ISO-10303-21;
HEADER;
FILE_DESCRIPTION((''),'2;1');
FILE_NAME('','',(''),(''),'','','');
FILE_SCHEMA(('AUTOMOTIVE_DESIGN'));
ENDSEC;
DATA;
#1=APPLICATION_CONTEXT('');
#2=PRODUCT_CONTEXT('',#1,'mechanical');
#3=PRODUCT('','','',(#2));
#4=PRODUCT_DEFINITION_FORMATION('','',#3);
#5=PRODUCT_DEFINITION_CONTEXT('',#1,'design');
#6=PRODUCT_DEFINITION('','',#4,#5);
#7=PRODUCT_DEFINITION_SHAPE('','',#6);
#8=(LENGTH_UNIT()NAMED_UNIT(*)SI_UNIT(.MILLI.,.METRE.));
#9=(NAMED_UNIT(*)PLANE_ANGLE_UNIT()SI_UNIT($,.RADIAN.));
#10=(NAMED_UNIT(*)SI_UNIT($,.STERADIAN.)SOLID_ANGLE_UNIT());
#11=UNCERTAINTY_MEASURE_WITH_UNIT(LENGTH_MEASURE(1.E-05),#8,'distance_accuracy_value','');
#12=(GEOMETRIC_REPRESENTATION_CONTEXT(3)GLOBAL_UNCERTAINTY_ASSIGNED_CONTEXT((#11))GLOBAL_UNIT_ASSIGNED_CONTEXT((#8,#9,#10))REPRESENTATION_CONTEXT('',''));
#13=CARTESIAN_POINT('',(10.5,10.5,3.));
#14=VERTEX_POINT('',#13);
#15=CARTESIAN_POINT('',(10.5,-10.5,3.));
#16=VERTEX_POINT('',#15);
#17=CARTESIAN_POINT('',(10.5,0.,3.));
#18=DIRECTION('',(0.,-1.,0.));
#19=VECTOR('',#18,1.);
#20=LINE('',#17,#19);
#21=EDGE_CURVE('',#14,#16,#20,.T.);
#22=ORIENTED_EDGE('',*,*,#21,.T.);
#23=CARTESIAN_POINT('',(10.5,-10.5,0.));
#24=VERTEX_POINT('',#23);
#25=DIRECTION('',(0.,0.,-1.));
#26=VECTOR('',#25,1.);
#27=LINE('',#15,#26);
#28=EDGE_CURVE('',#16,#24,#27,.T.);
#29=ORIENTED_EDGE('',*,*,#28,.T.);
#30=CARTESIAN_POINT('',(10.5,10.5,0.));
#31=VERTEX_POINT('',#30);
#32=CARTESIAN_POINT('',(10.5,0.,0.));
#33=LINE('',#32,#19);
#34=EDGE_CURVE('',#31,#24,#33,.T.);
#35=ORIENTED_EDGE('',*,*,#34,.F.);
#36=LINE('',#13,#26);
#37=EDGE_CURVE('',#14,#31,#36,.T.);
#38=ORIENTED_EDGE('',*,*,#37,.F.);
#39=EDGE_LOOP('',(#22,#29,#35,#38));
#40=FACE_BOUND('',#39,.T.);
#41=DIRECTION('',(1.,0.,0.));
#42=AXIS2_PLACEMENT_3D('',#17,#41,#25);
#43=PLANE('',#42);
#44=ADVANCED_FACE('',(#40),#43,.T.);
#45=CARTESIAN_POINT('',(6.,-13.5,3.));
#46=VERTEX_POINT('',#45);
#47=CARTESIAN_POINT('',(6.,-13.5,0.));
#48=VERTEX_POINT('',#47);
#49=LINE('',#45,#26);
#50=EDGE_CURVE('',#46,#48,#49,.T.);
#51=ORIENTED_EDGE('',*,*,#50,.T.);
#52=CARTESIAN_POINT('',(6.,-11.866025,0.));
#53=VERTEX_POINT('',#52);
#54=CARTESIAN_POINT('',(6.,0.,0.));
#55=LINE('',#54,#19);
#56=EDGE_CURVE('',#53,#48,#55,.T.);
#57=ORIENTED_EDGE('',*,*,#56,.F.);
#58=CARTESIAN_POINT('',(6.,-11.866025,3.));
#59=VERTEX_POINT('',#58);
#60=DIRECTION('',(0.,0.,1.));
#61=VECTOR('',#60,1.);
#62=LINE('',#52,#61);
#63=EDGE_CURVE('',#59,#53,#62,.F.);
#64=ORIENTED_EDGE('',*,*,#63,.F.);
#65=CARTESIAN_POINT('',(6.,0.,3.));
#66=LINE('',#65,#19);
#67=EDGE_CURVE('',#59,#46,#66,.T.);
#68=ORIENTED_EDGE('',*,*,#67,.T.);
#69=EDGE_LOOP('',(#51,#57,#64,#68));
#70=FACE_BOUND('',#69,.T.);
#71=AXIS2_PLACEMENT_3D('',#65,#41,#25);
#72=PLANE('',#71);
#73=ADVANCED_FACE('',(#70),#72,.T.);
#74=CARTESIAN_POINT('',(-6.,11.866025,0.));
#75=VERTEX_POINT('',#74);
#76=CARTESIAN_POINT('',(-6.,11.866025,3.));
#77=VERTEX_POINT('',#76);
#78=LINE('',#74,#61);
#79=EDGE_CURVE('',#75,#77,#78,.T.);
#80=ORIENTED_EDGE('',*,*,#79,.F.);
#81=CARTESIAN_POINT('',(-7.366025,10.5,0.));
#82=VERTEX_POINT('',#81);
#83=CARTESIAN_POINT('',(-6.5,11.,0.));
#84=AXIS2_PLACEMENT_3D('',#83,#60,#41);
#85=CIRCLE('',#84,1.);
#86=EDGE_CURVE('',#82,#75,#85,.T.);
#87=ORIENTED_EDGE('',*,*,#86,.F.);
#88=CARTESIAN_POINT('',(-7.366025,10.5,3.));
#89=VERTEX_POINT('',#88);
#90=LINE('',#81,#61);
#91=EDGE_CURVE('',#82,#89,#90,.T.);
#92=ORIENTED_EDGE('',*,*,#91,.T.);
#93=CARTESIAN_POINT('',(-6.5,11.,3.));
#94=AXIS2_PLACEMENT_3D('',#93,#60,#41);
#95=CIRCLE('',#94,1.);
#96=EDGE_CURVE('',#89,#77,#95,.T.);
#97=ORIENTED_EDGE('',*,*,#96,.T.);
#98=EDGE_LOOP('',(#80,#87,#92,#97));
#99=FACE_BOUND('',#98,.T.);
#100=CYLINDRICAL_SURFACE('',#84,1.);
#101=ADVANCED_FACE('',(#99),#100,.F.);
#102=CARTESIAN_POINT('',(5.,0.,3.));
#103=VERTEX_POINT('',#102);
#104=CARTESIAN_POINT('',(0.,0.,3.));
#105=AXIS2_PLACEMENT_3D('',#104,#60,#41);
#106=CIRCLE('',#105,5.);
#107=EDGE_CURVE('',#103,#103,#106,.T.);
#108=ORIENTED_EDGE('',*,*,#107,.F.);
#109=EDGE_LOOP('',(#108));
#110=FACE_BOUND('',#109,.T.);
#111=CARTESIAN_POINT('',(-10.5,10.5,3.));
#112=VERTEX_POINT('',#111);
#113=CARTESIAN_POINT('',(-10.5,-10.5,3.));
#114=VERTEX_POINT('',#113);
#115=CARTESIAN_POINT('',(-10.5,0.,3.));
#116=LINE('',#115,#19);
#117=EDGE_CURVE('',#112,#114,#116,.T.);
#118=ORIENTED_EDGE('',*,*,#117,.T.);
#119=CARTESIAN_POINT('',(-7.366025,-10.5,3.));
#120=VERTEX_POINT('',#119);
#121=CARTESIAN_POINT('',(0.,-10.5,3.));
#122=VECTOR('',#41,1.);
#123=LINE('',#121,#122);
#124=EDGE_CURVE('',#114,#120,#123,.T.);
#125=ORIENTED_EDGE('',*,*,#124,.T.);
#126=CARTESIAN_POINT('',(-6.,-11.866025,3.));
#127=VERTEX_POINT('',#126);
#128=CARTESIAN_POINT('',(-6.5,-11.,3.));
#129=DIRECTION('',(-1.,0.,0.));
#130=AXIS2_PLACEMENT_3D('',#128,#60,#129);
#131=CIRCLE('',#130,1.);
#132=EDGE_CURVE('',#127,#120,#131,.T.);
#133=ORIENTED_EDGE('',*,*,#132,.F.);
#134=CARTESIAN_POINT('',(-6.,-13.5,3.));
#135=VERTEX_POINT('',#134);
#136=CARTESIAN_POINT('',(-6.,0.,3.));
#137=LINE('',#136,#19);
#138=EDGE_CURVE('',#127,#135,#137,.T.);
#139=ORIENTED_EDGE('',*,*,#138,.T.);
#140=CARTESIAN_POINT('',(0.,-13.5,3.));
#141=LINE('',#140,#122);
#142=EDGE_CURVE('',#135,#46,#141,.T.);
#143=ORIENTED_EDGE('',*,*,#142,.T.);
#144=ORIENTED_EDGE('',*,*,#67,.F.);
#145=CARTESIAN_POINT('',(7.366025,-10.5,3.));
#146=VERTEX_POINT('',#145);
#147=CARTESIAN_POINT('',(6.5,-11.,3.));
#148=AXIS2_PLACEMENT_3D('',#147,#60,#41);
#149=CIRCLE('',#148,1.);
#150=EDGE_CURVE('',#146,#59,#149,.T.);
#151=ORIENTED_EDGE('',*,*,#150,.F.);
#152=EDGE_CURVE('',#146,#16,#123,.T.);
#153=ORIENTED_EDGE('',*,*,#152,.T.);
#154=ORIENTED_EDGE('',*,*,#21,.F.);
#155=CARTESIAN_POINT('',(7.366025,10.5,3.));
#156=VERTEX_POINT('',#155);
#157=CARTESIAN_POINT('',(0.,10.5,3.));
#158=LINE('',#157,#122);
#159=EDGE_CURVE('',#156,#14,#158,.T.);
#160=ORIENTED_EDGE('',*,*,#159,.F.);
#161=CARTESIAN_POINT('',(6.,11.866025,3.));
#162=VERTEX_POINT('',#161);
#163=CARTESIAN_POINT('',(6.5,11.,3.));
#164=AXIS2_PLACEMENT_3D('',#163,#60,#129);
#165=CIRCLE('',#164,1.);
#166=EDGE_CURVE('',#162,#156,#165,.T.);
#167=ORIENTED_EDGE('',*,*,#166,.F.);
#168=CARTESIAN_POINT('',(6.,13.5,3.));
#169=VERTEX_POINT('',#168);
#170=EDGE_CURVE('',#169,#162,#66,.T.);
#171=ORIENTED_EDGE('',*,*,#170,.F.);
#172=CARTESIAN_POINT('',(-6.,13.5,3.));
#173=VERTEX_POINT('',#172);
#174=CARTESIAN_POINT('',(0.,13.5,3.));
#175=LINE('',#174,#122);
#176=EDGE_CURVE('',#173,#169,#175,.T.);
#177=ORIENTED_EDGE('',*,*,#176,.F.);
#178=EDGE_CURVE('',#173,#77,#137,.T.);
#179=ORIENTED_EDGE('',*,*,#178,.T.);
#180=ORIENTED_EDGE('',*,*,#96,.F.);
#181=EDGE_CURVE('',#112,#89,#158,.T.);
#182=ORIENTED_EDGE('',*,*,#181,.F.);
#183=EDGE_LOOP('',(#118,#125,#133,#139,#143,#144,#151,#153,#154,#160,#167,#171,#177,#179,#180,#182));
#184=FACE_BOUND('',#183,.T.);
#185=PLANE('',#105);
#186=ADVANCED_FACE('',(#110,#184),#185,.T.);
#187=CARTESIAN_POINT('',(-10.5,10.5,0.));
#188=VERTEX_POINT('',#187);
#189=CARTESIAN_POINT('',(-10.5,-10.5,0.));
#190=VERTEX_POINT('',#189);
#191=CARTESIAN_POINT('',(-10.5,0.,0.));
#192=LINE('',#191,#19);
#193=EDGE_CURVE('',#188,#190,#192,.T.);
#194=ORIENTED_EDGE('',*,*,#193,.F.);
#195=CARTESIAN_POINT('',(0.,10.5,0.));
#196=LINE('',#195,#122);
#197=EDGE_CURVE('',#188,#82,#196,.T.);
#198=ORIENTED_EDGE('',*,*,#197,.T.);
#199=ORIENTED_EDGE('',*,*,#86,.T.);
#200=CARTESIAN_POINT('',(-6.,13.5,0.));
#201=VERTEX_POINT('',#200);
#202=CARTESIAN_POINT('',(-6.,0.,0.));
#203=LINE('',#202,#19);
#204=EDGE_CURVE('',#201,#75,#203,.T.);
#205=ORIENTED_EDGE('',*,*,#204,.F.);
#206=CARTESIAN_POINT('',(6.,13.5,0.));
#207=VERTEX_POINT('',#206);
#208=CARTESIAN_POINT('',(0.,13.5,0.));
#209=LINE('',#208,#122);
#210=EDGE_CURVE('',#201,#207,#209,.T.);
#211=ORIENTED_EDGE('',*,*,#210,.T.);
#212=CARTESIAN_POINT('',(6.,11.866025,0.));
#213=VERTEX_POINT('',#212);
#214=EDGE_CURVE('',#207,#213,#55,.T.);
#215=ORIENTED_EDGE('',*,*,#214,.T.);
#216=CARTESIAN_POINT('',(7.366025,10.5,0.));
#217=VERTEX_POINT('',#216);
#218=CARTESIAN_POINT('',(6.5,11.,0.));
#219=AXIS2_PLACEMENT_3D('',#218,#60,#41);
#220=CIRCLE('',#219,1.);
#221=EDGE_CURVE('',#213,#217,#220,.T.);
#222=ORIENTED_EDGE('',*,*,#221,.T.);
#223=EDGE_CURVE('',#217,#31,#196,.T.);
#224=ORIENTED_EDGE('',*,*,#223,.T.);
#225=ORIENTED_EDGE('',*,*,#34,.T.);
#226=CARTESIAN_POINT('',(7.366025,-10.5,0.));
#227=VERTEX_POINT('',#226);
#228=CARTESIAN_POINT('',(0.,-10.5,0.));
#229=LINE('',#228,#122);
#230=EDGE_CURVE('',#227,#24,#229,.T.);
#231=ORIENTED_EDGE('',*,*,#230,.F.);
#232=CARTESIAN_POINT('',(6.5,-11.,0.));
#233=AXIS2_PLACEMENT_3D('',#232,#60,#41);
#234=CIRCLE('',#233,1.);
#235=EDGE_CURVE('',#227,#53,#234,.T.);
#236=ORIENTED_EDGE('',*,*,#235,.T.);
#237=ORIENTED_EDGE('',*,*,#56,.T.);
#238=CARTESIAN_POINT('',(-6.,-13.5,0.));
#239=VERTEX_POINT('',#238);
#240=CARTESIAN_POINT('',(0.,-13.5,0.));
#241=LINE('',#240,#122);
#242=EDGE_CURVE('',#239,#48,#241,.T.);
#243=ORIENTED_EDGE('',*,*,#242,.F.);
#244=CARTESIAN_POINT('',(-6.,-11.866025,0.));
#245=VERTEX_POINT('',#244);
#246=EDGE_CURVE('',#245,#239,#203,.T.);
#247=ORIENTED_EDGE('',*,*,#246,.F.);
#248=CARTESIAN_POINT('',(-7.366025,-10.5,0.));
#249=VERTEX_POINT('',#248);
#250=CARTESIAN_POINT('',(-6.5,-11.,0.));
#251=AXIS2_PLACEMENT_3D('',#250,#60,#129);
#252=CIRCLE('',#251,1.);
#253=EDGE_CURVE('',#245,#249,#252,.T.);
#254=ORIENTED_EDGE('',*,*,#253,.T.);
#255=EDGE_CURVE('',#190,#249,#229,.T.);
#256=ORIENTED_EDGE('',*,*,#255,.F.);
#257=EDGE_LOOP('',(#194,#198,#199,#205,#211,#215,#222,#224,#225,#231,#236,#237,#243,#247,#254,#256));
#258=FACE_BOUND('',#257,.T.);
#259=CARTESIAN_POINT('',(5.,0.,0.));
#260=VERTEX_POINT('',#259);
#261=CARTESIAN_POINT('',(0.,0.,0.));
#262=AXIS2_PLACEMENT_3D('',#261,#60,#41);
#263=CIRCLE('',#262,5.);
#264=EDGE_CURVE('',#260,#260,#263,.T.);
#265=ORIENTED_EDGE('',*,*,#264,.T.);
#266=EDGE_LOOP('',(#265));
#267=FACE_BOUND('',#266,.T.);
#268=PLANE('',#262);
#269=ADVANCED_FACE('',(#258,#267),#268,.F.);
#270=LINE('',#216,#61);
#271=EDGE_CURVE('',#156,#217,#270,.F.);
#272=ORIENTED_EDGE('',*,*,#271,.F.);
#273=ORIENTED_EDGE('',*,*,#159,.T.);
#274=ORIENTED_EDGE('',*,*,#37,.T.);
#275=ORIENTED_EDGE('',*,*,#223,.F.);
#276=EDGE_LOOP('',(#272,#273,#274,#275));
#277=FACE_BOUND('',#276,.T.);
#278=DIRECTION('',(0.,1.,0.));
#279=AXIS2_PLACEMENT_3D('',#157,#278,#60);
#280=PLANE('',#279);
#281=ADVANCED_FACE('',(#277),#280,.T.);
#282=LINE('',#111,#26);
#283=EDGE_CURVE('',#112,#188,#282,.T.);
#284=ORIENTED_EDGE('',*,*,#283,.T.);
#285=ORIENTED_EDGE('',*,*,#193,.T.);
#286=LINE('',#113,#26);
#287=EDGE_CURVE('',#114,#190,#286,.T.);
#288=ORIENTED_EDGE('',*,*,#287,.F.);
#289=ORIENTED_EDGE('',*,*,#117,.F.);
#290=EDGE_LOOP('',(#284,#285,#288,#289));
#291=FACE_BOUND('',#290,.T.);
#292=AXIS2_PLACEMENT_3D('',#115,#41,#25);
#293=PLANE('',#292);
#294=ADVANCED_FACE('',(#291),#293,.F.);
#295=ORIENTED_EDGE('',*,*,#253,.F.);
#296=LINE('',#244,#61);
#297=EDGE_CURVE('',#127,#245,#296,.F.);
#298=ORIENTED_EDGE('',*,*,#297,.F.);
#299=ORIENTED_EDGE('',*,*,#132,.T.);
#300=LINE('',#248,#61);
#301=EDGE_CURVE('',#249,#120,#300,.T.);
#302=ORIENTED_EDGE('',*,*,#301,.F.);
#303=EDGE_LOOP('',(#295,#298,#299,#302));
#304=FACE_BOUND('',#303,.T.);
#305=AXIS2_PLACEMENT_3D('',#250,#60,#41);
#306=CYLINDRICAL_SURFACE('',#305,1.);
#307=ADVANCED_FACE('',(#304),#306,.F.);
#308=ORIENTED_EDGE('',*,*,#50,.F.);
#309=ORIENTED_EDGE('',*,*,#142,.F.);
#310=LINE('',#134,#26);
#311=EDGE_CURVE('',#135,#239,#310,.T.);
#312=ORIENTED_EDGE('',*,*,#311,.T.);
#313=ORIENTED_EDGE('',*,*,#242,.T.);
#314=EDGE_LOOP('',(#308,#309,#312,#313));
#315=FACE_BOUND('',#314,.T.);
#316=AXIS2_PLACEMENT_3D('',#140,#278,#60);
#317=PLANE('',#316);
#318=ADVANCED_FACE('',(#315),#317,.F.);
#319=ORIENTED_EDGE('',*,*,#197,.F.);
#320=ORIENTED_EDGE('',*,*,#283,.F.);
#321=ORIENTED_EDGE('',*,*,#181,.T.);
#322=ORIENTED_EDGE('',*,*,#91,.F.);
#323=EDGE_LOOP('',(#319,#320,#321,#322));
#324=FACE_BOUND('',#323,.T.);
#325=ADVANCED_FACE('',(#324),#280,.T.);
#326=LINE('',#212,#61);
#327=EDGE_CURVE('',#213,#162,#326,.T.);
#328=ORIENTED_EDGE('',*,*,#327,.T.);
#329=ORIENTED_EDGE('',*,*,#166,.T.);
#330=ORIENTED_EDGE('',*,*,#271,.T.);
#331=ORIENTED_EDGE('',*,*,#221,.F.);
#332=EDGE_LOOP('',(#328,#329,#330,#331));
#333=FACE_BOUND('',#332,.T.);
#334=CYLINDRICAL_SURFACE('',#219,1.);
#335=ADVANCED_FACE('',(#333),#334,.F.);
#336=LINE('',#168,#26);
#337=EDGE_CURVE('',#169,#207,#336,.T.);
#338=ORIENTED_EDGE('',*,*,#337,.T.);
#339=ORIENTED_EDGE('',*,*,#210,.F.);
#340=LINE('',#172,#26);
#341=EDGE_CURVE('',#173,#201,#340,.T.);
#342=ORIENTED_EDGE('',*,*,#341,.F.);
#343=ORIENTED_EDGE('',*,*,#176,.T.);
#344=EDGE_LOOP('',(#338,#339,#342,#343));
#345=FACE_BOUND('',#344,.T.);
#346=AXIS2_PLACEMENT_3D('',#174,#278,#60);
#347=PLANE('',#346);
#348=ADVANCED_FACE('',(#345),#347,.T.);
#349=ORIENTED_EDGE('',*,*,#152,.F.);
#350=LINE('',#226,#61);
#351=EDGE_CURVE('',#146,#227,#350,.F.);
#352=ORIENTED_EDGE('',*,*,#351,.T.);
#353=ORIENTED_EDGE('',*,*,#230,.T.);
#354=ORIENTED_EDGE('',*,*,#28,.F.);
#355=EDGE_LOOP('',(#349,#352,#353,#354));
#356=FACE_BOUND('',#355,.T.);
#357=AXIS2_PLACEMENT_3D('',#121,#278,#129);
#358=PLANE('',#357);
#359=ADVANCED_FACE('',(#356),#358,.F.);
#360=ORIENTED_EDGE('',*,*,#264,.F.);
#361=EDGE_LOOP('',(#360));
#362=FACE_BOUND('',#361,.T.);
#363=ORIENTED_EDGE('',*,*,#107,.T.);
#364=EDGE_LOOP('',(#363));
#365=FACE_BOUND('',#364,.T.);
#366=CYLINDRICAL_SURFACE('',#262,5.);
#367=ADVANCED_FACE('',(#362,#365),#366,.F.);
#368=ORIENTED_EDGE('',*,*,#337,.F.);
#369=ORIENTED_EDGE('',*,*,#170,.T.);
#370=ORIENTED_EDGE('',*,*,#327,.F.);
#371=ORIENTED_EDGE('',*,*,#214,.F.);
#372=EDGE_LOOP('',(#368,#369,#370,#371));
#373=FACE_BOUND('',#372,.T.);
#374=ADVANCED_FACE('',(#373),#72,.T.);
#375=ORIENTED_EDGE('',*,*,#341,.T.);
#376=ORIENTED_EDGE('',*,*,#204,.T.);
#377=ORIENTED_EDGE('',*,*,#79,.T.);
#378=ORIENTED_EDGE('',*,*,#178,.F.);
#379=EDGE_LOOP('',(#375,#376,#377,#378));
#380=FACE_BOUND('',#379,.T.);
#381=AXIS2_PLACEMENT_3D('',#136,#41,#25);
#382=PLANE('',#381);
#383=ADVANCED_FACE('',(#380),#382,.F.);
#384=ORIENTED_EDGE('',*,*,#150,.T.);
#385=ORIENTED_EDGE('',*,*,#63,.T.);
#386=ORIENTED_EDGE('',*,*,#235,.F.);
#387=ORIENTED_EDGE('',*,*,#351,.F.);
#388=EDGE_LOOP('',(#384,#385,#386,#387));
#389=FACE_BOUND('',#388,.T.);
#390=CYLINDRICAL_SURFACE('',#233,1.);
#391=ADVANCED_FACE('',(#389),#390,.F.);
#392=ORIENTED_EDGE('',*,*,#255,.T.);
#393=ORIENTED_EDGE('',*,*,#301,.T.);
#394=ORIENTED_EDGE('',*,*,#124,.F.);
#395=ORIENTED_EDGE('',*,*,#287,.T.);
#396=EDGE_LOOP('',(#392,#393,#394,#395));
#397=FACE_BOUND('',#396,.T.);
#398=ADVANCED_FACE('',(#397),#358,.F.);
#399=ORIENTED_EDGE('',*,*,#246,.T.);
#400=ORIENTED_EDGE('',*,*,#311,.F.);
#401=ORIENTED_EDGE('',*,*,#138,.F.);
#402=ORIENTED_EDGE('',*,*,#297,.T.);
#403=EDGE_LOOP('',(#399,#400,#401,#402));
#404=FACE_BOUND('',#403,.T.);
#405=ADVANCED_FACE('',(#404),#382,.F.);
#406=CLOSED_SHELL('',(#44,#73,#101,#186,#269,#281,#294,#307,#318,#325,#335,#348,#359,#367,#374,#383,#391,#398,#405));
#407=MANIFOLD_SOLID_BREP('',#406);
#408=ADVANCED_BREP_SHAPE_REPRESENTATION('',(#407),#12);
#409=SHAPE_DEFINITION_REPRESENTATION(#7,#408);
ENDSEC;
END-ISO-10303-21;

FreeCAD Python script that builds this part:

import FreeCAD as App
import Part
import Sketcher

V = App.Vector

doc = App.newDocument("Part")
body = doc.addObject("PartDesign::Body", "Body")

sketch1 = body.newObject("Sketcher::SketchObject", "Sketch")
sketch1.AttachmentSupport = (doc.getObject("XY_Plane"), [""])
sketch1.MapMode = "FlatFace"
sketch1.addGeometry(Part.LineSegment(V(-6, 13.5, 0), V(-6, 10.5, 0)), False)
sketch1.addGeometry(Part.LineSegment(V(-6, 10.5, 0), V(-10.5, 10.5, 0)), False)
sketch1.addGeometry(Part.LineSegment(V(-10.5, 10.5, 0), V(-10.5, -10.5, 0)), False)
sketch1.addGeometry(Part.LineSegment(V(-10.5, -10.5, 0), V(-6, -10.5, 0)), False)
sketch1.addGeometry(Part.LineSegment(V(-6, -10.5, 0), V(-6, -13.5, 0)), False)
sketch1.addGeometry(Part.LineSegment(V(-6, -13.5, 0), V(6, -13.5, 0)), False)
sketch1.addGeometry(Part.LineSegment(V(6, -13.5, 0), V(6, -10.5, 0)), False)
sketch1.addGeometry(Part.LineSegment(V(6, -10.5, 0), V(10.5, -10.5, 0)), False)
sketch1.addGeometry(Part.LineSegment(V(10.5, -10.5, 0), V(10.5, 10.5, 0)), False)
sketch1.addGeometry(Part.LineSegment(V(10.5, 10.5, 0), V(6, 10.5, 0)), False)
sketch1.addGeometry(Part.LineSegment(V(6, 10.5, 0), V(6, 13.5, 0)), False)
sketch1.addGeometry(Part.LineSegment(V(6, 13.5, 0), V(-6, 13.5, 0)), False)
sketch1.addConstraint(Sketcher.Constraint("Coincident", 0, 2, 1, 1))
sketch1.addConstraint(Sketcher.Constraint("Coincident", 1, 2, 2, 1))
sketch1.addConstraint(Sketcher.Constraint("Coincident", 2, 2, 3, 1))
sketch1.addConstraint(Sketcher.Constraint("Coincident", 3, 2, 4, 1))
sketch1.addConstraint(Sketcher.Constraint("Coincident", 4, 2, 5, 1))
sketch1.addConstraint(Sketcher.Constraint("Coincident", 5, 2, 6, 1))
sketch1.addConstraint(Sketcher.Constraint("Coincident", 6, 2, 7, 1))
sketch1.addConstraint(Sketcher.Constraint("Coincident", 7, 2, 8, 1))
sketch1.addConstraint(Sketcher.Constraint("Coincident", 8, 2, 9, 1))
sketch1.addConstraint(Sketcher.Constraint("Coincident", 9, 2, 10, 1))
sketch1.addConstraint(Sketcher.Constraint("Coincident", 10, 2, 11, 1))
sketch1.addConstraint(Sketcher.Constraint("Coincident", 11, 2, 0, 1))
sketch1.addConstraint(Sketcher.Constraint("Vertical", 0))
sketch1.addConstraint(Sketcher.Constraint("Horizontal", 1))
sketch1.addConstraint(Sketcher.Constraint("Vertical", 2))
sketch1.addConstraint(Sketcher.Constraint("Horizontal", 3))
sketch1.addConstraint(Sketcher.Constraint("Vertical", 4))
sketch1.addConstraint(Sketcher.Constraint("Horizontal", 5))
sketch1.addConstraint(Sketcher.Constraint("Vertical", 6))
sketch1.addConstraint(Sketcher.Constraint("Horizontal", 7))
sketch1.addConstraint(Sketcher.Constraint("Vertical", 8))
sketch1.addConstraint(Sketcher.Constraint("Horizontal", 9))
sketch1.addConstraint(Sketcher.Constraint("Vertical", 10))
sketch1.addConstraint(Sketcher.Constraint("Horizontal", 11))
sketch1.addConstraint(Sketcher.Constraint("Symmetric", 0, 2, 6, 2, -1, 1))
sketch1.addConstraint(Sketcher.Constraint("Symmetric", 2, 2, 8, 2, -1, 1))
sketch1.addConstraint(Sketcher.Constraint("Symmetric", 4, 2, 10, 2, -1, 1))
sketch1.addConstraint(Sketcher.Constraint("Symmetric", 3, 2, 6, 2, -2))
sketch1.addConstraint(Sketcher.Constraint("DistanceX", 5, 1, 5, 2, 12.0))
sketch1.addConstraint(Sketcher.Constraint("DistanceY", 0, 2, 0, 1, 3.0))
sketch1.addConstraint(Sketcher.Constraint("DistanceY", 2, 2, 2, 1, 21.0))
sketch1.addConstraint(Sketcher.Constraint("DistanceX", 1, 2, 1, 1, 4.5))
pad1 = body.newObject("PartDesign::Pad", "Pad")
pad1.Profile = sketch1
pad1.Length = 3

sketch2 = body.newObject("Sketcher::SketchObject", "Sketch001")
sketch2.AttachmentSupport = (doc.getObject("XY_Plane"), [""])
sketch2.MapMode = "FlatFace"
sketch2.AttachmentOffset = App.Placement(V(0, 0, 3), App.Rotation())
sketch2.addGeometry(Part.Circle(V(0, 0, 0), V(0, 0, 1), 5), False)
sketch2.addConstraint(Sketcher.Constraint("Coincident", 0, 3, -1, 1))
sketch2.addConstraint(Sketcher.Constraint("Diameter", 0, 10.0))
pocket1 = body.newObject("PartDesign::Pocket", "Pocket")
pocket1.Profile = sketch2
pocket1.Type = "ThroughAll"

sketch3 = body.newObject("Sketcher::SketchObject", "Sketch002")
sketch3.AttachmentSupport = (doc.getObject("XY_Plane"), [""])
sketch3.MapMode = "FlatFace"
sketch3.AttachmentOffset = App.Placement(V(0, 0, 3), App.Rotation())
sketch3.addGeometry(Part.Circle(V(-6.5, 11, 0), V(0, 0, 1), 1), False)
sketch3.addGeometry(Part.Circle(V(6.5, 11, 0), V(0, 0, 1), 1), False)
sketch3.addGeometry(Part.Circle(V(6.5, -11, 0), V(0, 0, 1), 1), False)
sketch3.addGeometry(Part.Circle(V(-6.5, -11, 0), V(0, 0, 1), 1), False)
sketch3.addConstraint(Sketcher.Constraint("Equal", 0, 1))
sketch3.addConstraint(Sketcher.Constraint("Equal", 1, 2))
sketch3.addConstraint(Sketcher.Constraint("Equal", 2, 3))
sketch3.addConstraint(Sketcher.Constraint("Symmetric", 0, 3, 2, 3, -1, 1))
sketch3.addConstraint(Sketcher.Constraint("Symmetric", 1, 3, 3, 3, -1, 1))
sketch3.addConstraint(Sketcher.Constraint("Symmetric", 0, 3, 1, 3, -2))
sketch3.addConstraint(Sketcher.Constraint("Diameter", 0, 2.0))
sketch3.addConstraint(Sketcher.Constraint("DistanceY", -1, 1, 0, 3, 11.0))
sketch3.addConstraint(Sketcher.Constraint("DistanceX", 0, 3, 1, 3, 13.0))
pocket2 = body.newObject("PartDesign::Pocket", "Pocket001")
pocket2.Profile = sketch3
pocket2.Type = "ThroughAll"

doc.recompute()
